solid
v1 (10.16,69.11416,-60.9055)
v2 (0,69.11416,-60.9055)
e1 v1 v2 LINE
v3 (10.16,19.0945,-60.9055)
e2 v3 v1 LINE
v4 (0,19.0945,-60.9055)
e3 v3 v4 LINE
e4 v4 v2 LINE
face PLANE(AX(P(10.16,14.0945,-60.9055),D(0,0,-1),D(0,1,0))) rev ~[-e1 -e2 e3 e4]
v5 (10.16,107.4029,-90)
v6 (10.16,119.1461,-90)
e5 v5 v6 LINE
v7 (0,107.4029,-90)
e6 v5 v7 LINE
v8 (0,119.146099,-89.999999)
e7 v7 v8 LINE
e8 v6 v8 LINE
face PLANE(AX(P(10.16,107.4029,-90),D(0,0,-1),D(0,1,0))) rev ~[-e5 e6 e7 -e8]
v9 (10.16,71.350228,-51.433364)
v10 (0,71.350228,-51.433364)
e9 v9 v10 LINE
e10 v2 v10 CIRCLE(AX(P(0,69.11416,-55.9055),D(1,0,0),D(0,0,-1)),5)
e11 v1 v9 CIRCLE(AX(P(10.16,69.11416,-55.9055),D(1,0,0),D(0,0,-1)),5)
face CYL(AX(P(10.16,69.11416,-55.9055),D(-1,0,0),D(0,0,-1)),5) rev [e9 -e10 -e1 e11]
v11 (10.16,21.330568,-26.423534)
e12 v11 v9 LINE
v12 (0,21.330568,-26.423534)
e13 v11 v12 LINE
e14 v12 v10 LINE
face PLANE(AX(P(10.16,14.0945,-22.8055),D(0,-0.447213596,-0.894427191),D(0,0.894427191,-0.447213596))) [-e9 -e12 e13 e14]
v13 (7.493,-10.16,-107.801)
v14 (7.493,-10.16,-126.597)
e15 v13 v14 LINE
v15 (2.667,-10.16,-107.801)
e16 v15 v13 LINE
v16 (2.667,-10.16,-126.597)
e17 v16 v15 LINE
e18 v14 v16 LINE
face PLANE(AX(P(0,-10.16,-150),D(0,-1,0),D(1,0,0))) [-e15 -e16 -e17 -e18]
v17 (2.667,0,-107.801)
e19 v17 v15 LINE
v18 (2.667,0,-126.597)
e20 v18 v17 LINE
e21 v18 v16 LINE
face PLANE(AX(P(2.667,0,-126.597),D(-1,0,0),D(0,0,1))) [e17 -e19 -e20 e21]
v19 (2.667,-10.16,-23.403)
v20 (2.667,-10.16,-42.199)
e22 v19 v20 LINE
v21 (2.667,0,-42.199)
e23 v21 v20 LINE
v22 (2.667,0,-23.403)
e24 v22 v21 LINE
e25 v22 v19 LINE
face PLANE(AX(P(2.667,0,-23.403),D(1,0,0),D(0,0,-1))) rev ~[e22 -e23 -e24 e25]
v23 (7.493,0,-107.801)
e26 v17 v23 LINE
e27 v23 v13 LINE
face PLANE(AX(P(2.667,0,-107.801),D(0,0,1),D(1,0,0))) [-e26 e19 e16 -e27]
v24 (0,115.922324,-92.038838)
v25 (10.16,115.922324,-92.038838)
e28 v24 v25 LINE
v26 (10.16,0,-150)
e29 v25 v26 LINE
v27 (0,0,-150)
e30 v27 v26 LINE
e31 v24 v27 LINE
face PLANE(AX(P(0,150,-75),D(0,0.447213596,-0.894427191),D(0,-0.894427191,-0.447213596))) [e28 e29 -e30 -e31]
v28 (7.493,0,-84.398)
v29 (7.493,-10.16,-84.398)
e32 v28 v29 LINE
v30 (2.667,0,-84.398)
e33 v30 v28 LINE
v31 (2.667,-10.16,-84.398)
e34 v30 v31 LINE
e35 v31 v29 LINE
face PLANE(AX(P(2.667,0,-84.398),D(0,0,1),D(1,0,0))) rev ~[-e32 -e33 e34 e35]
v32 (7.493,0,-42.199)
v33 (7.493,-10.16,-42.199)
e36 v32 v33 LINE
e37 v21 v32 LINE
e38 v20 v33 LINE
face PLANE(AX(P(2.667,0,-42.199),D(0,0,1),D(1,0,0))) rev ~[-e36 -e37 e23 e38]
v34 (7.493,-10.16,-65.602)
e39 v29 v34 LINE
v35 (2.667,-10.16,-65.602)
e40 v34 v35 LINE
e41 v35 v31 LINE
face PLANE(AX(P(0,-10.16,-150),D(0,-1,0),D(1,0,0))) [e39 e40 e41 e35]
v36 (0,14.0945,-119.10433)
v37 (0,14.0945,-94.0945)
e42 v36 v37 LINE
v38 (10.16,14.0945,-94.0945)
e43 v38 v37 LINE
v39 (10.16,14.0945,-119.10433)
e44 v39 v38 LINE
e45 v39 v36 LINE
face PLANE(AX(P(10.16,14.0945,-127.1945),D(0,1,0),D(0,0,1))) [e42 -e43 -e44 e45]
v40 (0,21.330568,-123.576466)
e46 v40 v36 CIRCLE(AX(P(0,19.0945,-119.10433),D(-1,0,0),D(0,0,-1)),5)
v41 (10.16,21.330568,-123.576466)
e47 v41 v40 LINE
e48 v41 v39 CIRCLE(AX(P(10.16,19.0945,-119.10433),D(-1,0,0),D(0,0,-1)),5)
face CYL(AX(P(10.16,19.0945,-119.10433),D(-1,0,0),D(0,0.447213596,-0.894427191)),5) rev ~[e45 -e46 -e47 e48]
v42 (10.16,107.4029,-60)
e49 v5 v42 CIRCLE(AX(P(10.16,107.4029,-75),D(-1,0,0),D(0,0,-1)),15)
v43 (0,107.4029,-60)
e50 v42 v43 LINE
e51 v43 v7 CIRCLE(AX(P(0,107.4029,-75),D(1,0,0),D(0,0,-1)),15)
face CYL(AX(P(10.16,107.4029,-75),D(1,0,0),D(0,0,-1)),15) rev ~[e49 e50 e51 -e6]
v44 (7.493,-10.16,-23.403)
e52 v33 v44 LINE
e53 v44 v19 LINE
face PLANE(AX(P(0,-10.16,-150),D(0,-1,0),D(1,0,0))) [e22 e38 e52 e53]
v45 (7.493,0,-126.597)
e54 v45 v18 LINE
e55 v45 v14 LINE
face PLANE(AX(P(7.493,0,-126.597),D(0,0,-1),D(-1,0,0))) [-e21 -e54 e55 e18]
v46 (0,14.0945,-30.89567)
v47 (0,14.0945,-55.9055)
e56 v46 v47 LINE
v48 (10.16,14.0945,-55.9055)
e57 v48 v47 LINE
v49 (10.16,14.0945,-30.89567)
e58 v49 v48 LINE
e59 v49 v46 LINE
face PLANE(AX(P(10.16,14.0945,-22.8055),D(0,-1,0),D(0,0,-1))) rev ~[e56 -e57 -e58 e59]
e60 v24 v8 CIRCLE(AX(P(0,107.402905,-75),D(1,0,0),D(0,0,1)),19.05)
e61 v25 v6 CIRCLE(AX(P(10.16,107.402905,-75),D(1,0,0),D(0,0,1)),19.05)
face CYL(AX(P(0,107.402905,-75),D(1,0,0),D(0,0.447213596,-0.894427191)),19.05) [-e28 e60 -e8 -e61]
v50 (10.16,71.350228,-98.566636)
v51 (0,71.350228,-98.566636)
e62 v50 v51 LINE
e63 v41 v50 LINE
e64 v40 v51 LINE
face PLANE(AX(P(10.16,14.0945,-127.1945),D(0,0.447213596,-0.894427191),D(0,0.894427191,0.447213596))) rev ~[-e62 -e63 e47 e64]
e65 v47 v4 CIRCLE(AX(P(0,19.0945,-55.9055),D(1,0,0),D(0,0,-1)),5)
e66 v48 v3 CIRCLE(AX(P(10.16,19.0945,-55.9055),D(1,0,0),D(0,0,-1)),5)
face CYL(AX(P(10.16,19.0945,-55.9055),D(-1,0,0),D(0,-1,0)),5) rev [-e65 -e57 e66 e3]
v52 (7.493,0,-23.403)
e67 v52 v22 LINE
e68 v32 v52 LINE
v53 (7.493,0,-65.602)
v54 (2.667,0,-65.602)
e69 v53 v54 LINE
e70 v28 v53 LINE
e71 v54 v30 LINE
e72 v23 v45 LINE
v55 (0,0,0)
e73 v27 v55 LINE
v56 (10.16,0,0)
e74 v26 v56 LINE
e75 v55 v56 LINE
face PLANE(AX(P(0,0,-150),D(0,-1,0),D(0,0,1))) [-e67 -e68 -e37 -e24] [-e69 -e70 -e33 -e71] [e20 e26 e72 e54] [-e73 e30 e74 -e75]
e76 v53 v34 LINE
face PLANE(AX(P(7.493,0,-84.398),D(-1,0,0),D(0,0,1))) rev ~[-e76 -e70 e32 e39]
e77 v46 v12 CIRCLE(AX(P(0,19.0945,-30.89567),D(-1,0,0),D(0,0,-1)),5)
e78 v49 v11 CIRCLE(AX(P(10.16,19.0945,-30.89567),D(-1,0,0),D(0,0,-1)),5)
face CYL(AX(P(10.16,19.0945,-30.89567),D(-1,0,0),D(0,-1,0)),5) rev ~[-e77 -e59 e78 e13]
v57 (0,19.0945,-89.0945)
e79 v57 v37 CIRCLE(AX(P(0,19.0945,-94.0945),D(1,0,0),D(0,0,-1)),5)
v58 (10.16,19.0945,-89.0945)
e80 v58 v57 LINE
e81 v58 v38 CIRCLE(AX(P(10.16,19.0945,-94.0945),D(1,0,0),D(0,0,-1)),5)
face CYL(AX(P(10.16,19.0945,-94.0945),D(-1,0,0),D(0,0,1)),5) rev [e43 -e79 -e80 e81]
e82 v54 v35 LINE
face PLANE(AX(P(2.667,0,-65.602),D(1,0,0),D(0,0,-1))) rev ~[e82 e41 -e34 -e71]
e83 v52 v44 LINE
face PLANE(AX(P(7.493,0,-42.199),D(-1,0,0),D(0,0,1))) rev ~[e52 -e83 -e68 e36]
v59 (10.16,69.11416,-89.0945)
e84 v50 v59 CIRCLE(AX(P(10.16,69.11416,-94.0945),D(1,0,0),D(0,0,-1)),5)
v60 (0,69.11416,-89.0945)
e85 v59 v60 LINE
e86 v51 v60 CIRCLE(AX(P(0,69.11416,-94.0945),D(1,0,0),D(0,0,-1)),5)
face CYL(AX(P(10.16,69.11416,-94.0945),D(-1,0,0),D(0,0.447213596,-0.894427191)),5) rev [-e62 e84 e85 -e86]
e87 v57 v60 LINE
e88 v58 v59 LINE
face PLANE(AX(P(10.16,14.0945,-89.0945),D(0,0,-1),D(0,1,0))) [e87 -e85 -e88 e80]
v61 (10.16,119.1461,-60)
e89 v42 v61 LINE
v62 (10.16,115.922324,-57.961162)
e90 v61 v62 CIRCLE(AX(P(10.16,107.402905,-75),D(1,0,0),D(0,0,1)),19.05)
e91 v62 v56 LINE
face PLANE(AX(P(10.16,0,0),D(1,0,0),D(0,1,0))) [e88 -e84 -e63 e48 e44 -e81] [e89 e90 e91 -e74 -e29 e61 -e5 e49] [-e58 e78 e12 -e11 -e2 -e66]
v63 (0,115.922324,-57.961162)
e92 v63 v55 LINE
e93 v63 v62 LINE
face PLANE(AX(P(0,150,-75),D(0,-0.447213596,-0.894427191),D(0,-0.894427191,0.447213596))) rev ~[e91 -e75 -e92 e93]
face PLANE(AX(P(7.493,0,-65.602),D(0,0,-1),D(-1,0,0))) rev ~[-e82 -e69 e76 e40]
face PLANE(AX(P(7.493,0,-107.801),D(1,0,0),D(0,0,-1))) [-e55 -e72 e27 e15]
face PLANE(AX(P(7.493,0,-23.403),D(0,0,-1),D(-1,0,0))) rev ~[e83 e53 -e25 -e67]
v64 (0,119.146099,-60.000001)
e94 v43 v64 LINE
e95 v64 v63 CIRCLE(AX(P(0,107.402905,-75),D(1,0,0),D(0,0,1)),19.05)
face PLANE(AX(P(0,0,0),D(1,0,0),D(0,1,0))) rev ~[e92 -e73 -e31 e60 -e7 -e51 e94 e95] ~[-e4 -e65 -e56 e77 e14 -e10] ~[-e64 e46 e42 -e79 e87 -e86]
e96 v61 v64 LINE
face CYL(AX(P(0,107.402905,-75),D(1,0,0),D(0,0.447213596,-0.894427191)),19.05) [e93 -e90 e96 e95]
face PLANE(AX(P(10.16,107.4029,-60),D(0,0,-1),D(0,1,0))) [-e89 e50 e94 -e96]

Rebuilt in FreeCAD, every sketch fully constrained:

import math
import FreeCAD as App
import Part
import Sketcher
Q = App.Units.Quantity


def edges_at(feature, points):
    """Names of the edges that pass closest to the given points."""
    edges = feature.Shape.Edges
    near = lambda p: min(range(len(edges)), key=lambda i: edges[i].distToShape(Part.Vertex(*p))[0])
    return sorted({f"Edge{near(p) + 1}" for p in points})

doc = App.newDocument("Part")
params = doc.addObject("Spreadsheet::Sheet", "Params")
for row, (alias, value) in enumerate([
    ("pad1_length", "0.4 in"),
    ("fillet_radius", "0.75 in"),
    ("sketch2_width", "3 in"),
    ("sketch2_height", "1.5 in"),
    ("fillet2_radius", "5 mm"),
    ("fillet3_radius", "5 mm"),
    ("fillet4_radius", "5 mm"),
    ("sketch3_width", "0.19 in"),
    ("sketch3_height", "0.74 in"),
    ("pad2_length", "0.4 in"),
    ("sketch5_radius", "0.75 in"),
], start=1):
    params.set(f"A{row}", alias)
    params.set(f"B{row}", "=" + value)
    params.setAlias(f"B{row}", alias)

body = doc.addObject("PartDesign::Body", "Body")

sketch1 = doc.addObject("Sketcher::SketchObject", "Sketch")
body.addObject(sketch1)
sketch1.AttachmentSupport = (doc.YZ_Plane, [""])
sketch1.MapMode = "FlatFace"
sketch1.addGeometry(Part.LineSegment(App.Vector(0, -150, 0), App.Vector(150, -75, 0)), False)
sketch1.addGeometry(Part.LineSegment(App.Vector(150, -75, 0), App.Vector(0, 0, 0)), False)
sketch1.addGeometry(Part.LineSegment(App.Vector(0, 0, 0), App.Vector(0, -150, 0)), False)
sketch1.addConstraint(Sketcher.Constraint("Coincident", 0, 2, 1, 1))
sketch1.addConstraint(Sketcher.Constraint("Coincident", 1, 2, 2, 1))
sketch1.addConstraint(Sketcher.Constraint("Coincident", 2, 2, 0, 1))
sketch1.addConstraint(Sketcher.Constraint("Vertical", 2))
sketch1.addConstraint(Sketcher.Constraint("Coincident", 1, 2, -1, 1))
sketch1.addConstraint(Sketcher.Constraint("Equal", 0, 1))
sketch1.addConstraint(Sketcher.Constraint("DistanceY", 2, 2, 2, 1, Q("5.9055 in")))
sketch1.addConstraint(Sketcher.Constraint("DistanceX", -1, 1, 0, 2, Q("5.9055 in")))
pad1 = doc.addObject("PartDesign::Pad", "Pad")
body.addObject(pad1)
pad1.Profile = sketch1
pad1.setExpression("Length", "Params.pad1_length")
doc.recompute()

fillet = doc.addObject("PartDesign::Fillet", "Fillet")
body.addObject(fillet)
fillet.Base = (pad1, edges_at(pad1, [(5.08, 150, -75)]))
fillet.setExpression("Radius", "Params.fillet_radius")

sketch2 = doc.addObject("Sketcher::SketchObject", "Sketch001")
body.addObject(sketch2)
sketch2.AttachmentSupport = (doc.YZ_Plane, [""])
sketch2.MapMode = "FlatFace"
sketch2.AttachmentOffset = App.Placement(App.Vector(0, 0, 0.4 * 25.4), App.Rotation())
sketch2.addGeometry(Part.LineSegment(App.Vector(90, -61, 0), App.Vector(14, -23, 0)), False)
sketch2.addGeometry(Part.LineSegment(App.Vector(14, -23, 0), App.Vector(14, -61, 0)), False)
sketch2.addGeometry(Part.LineSegment(App.Vector(14, -61, 0), App.Vector(90, -61, 0)), False)
sketch2.addGeometry(Part.LineSegment(App.Vector(14, -89, 0), App.Vector(14, -127, 0)), False)
sketch2.addGeometry(Part.LineSegment(App.Vector(14, -127, 0), App.Vector(90, -89, 0)), False)
sketch2.addGeometry(Part.LineSegment(App.Vector(90, -89, 0), App.Vector(14, -89, 0)), False)
sketch2.addConstraint(Sketcher.Constraint("Coincident", 0, 2, 1, 1))
sketch2.addConstraint(Sketcher.Constraint("Coincident", 1, 2, 2, 1))
sketch2.addConstraint(Sketcher.Constraint("Coincident", 2, 2, 0, 1))
sketch2.addConstraint(Sketcher.Constraint("Coincident", 3, 2, 4, 1))
sketch2.addConstraint(Sketcher.Constraint("Coincident", 4, 2, 5, 1))
sketch2.addConstraint(Sketcher.Constraint("Coincident", 5, 2, 3, 1))
sketch2.addConstraint(Sketcher.Constraint("Vertical", 1))
sketch2.addConstraint(Sketcher.Constraint("Horizontal", 2))
sketch2.addConstraint(Sketcher.Constraint("Vertical", 3))
sketch2.addConstraint(Sketcher.Constraint("Horizontal", 5))
sketch2.addConstraint(Sketcher.Constraint("Vertical", 1, 2, 3, 2))
sketch2.addConstraint(Sketcher.Constraint("Vertical", 2, 2, 4, 2))
sketch2.addConstraint(Sketcher.Constraint("Equal", 1, 3))
sketch2.addConstraint(Sketcher.Constraint("DistanceX", 2, 1, 2, 2, Q("3 in")))
sketch2.addConstraint(Sketcher.Constraint("DistanceY", 1, 2, 1, 1, Q("1.5 in")))
sketch2.addConstraint(Sketcher.Constraint("DistanceX", -1, 1, 0, 2, Q("0.5549 in")))
sketch2.addConstraint(Sketcher.Constraint("DistanceY", 3, 2, 1, 2, Q("2.6098 in")))
sketch2.addConstraint(Sketcher.Constraint("DistanceY", 0, 2, -1, 1, 22.8055))
sketch2.setExpression("Constraints[13]", "Params.sketch2_width")
sketch2.setExpression("Constraints[14]", "Params.sketch2_height")
pocket1 = doc.addObject("PartDesign::Pocket", "Pocket")
body.addObject(pocket1)
pocket1.Profile = sketch2
pocket1.Type = "ThroughAll"
doc.recompute()

fillet2 = doc.addObject("PartDesign::Fillet", "Fillet001")
body.addObject(fillet2)
fillet2.Base = (pocket1, edges_at(pocket1, [(5.08, 14.095, -127.195)]))
fillet2.setExpression("Radius", "Params.fillet2_radius")
doc.recompute()

fillet3 = doc.addObject("PartDesign::Fillet", "Fillet002")
body.addObject(fillet3)
fillet3.Base = (fillet2, edges_at(fillet2, [(5.08, 14.095, -89.094), (5.08, 90.294, -89.094)]))
fillet3.setExpression("Radius", "Params.fillet3_radius")
doc.recompute()

fillet4 = doc.addObject("PartDesign::Fillet", "Fillet003")
body.addObject(fillet4)
fillet4.Base = (fillet3, edges_at(fillet3, [(5.08, 14.095, -60.906), (5.08, 90.294, -60.906), (5.08, 14.095, -22.805)]))
fillet4.setExpression("Radius", "Params.fillet4_radius")

sketch3 = doc.addObject("Sketcher::SketchObject", "Sketch002")
body.addObject(sketch3)
sketch3.AttachmentSupport = (doc.XZ_Plane, [""])
sketch3.MapMode = "FlatFace"
sketch3.addGeometry(Part.LineSegment(App.Vector(7.5, -42.2, 0), App.Vector(7.5, -23.4, 0)), False)
sketch3.addGeometry(Part.LineSegment(App.Vector(7.5, -23.4, 0), App.Vector(2.7, -23.4, 0)), False)
sketch3.addGeometry(Part.LineSegment(App.Vector(2.7, -23.4, 0), App.Vector(2.7, -42.2, 0)), False)
sketch3.addGeometry(Part.LineSegment(App.Vector(2.7, -42.2, 0), App.Vector(7.5, -42.2, 0)), False)
sketch3.addGeometry(Part.LineSegment(App.Vector(7.5, -84.4, 0), App.Vector(7.5, -65.6, 0)), False)
sketch3.addGeometry(Part.LineSegment(App.Vector(7.5, -65.6, 0), App.Vector(2.7, -65.6, 0)), False)
sketch3.addGeometry(Part.LineSegment(App.Vector(2.7, -65.6, 0), App.Vector(2.7, -84.4, 0)), False)
sketch3.addGeometry(Part.LineSegment(App.Vector(2.7, -84.4, 0), App.Vector(7.5, -84.4, 0)), False)
sketch3.addGeometry(Part.LineSegment(App.Vector(2.7, -126.6, 0), App.Vector(7.5, -126.6, 0)), False)
sketch3.addGeometry(Part.LineSegment(App.Vector(7.5, -126.6, 0), App.Vector(7.5, -107.8, 0)), False)
sketch3.addGeometry(Part.LineSegment(App.Vector(7.5, -107.8, 0), App.Vector(2.7, -107.8, 0)), False)
sketch3.addGeometry(Part.LineSegment(App.Vector(2.7, -107.8, 0), App.Vector(2.7, -126.6, 0)), False)
sketch3.addConstraint(Sketcher.Constraint("Coincident", 0, 2, 1, 1))
sketch3.addConstraint(Sketcher.Constraint("Coincident", 1, 2, 2, 1))
sketch3.addConstraint(Sketcher.Constraint("Coincident", 2, 2, 3, 1))
sketch3.addConstraint(Sketcher.Constraint("Coincident", 3, 2, 0, 1))
sketch3.addConstraint(Sketcher.Constraint("Coincident", 4, 2, 5, 1))
sketch3.addConstraint(Sketcher.Constraint("Coincident", 5, 2, 6, 1))
sketch3.addConstraint(Sketcher.Constraint("Coincident", 6, 2, 7, 1))
sketch3.addConstraint(Sketcher.Constraint("Coincident", 7, 2, 4, 1))
sketch3.addConstraint(Sketcher.Constraint("Coincident", 8, 2, 9, 1))
sketch3.addConstraint(Sketcher.Constraint("Coincident", 9, 2, 10, 1))
sketch3.addConstraint(Sketcher.Constraint("Coincident", 10, 2, 11, 1))
sketch3.addConstraint(Sketcher.Constraint("Coincident", 11, 2, 8, 1))
sketch3.addConstraint(Sketcher.Constraint("Vertical", 0))
sketch3.addConstraint(Sketcher.Constraint("Horizontal", 1))
sketch3.addConstraint(Sketcher.Constraint("Vertical", 2))
sketch3.addConstraint(Sketcher.Constraint("Horizontal", 3))
sketch3.addConstraint(Sketcher.Constraint("Vertical", 4))
sketch3.addConstraint(Sketcher.Constraint("Horizontal", 5))
sketch3.addConstraint(Sketcher.Constraint("Vertical", 6))
sketch3.addConstraint(Sketcher.Constraint("Horizontal", 7))
sketch3.addConstraint(Sketcher.Constraint("Horizontal", 8))
sketch3.addConstraint(Sketcher.Constraint("Vertical", 9))
sketch3.addConstraint(Sketcher.Constraint("Horizontal", 10))
sketch3.addConstraint(Sketcher.Constraint("Vertical", 11))
sketch3.addConstraint(Sketcher.Constraint("Vertical", 3, 2, 4, 2))
sketch3.addConstraint(Sketcher.Constraint("Vertical", 2, 2, 5, 2))
sketch3.addConstraint(Sketcher.Constraint("Vertical", 7, 2, 8, 2))
sketch3.addConstraint(Sketcher.Constraint("Vertical", 6, 2, 10, 2))
sketch3.addConstraint(Sketcher.Constraint("Equal", 2, 4))
sketch3.addConstraint(Sketcher.Constraint("Equal", 6, 9))
sketch3.addConstraint(Sketcher.Constraint("DistanceX", 1, 2, 1, 1, Q("0.19 in")))
sketch3.addConstraint(Sketcher.Constraint("DistanceY", 0, 1, 0, 2, Q("0.74 in")))
sketch3.addConstraint(Sketcher.Constraint("DistanceX", -1, 1, 1, 2, Q("0.105 in")))
sketch3.addConstraint(Sketcher.Constraint("DistanceY", 0, 2, -1, 1, 23.403))
sketch3.addConstraint(Sketcher.Constraint("DistanceY", 4, 2, 3, 2, 23.403))
sketch3.addConstraint(Sketcher.Constraint("DistanceY", 9, 2, 7, 2, 23.403))
sketch3.setExpression("Constraints[30]", "Params.sketch3_width")
sketch3.setExpression("Constraints[31]", "Params.sketch3_height")
pad2 = doc.addObject("PartDesign::Pad", "Pad001")
body.addObject(pad2)
pad2.Profile = sketch3
pad2.setExpression("Length", "Params.pad2_length")

sketch4 = doc.addObject("Sketcher::SketchObject", "Sketch003")
body.addObject(sketch4)
sketch4.AttachmentSupport = (doc.YZ_Plane, [""])
sketch4.MapMode = "FlatFace"
sketch4.AttachmentOffset = App.Placement(App.Vector(0, 0, 0.4 * 25.4), App.Rotation())
sketch4.addGeometry(Part.Circle(App.Vector(107, -75, 0), App.Vector(0, 0, 1), 15), False)
sketch4.addConstraint(Sketcher.Constraint("Diameter", 0, Q("1.1811 in")))
sketch4.addConstraint(Sketcher.Constraint("DistanceX", -1, 1, 0, 3, 107.403))
sketch4.addConstraint(Sketcher.Constraint("DistanceY", 0, 3, -1, 1, 75.0))
pocket2 = doc.addObject("PartDesign::Pocket", "Pocket001")
body.addObject(pocket2)
pocket2.Profile = sketch4
pocket2.Type = "ThroughAll"

sketch5 = doc.addObject("Sketcher::SketchObject", "Sketch004")
body.addObject(sketch5)
sketch5.AttachmentSupport = (doc.YZ_Plane, [""])
sketch5.MapMode = "FlatFace"
sketch5.AttachmentOffset = App.Placement(App.Vector(0, 0, 0.4 * 25.4), App.Rotation())
sketch5.addGeometry(Part.ArcOfCircle(Part.Circle(App.Vector(107, -75, 0), App.Vector(0, 0, 1), 15), math.radians(-90), math.radians(90)), False)
sketch5.addGeometry(Part.LineSegment(App.Vector(107, -90, 0), App.Vector(119, -90, 0)), False)
sketch5.addGeometry(Part.ArcOfCircle(Part.Circle(App.Vector(107, -75, 0), App.Vector(0, 0, 1), 19), math.radians(-52), math.radians(52)), False)
sketch5.addGeometry(Part.LineSegment(App.Vector(119, -60, 0), App.Vector(107, -60, 0)), False)
sketch5.addConstraint(Sketcher.Constraint("Tangent", 0, 1, 1, 1))
sketch5.addConstraint(Sketcher.Constraint("Coincident", 1, 2, 2, 1))
sketch5.addConstraint(Sketcher.Constraint("Coincident", 2, 2, 3, 1))
sketch5.addConstraint(Sketcher.Constraint("Tangent", 3, 2, 0, 2))
sketch5.addConstraint(Sketcher.Constraint("Horizontal", 1))
sketch5.addConstraint(Sketcher.Constraint("Horizontal", 3))
sketch5.addConstraint(Sketcher.Constraint("Coincident", 2, 3, 0, 3))
sketch5.addConstraint(Sketcher.Constraint("Radius", 2, Q("0.75 in")))
sketch5.addConstraint(Sketcher.Constraint("Radius", 0, 15.0))
sketch5.addConstraint(Sketcher.Constraint("DistanceY", 0, 1, -1, 1, Q("3.5433 in")))
sketch5.addConstraint(Sketcher.Constraint("DistanceX", -1, 1, 1, 2, Q("4.6908 in")))
sketch5.setExpression("Constraints[7]", "Params.sketch5_radius")
pocket3 = doc.addObject("PartDesign::Pocket", "Pocket002")
body.addObject(pocket3)
pocket3.Profile = sketch5
pocket3.Type = "ThroughAll"

doc.recompute()
